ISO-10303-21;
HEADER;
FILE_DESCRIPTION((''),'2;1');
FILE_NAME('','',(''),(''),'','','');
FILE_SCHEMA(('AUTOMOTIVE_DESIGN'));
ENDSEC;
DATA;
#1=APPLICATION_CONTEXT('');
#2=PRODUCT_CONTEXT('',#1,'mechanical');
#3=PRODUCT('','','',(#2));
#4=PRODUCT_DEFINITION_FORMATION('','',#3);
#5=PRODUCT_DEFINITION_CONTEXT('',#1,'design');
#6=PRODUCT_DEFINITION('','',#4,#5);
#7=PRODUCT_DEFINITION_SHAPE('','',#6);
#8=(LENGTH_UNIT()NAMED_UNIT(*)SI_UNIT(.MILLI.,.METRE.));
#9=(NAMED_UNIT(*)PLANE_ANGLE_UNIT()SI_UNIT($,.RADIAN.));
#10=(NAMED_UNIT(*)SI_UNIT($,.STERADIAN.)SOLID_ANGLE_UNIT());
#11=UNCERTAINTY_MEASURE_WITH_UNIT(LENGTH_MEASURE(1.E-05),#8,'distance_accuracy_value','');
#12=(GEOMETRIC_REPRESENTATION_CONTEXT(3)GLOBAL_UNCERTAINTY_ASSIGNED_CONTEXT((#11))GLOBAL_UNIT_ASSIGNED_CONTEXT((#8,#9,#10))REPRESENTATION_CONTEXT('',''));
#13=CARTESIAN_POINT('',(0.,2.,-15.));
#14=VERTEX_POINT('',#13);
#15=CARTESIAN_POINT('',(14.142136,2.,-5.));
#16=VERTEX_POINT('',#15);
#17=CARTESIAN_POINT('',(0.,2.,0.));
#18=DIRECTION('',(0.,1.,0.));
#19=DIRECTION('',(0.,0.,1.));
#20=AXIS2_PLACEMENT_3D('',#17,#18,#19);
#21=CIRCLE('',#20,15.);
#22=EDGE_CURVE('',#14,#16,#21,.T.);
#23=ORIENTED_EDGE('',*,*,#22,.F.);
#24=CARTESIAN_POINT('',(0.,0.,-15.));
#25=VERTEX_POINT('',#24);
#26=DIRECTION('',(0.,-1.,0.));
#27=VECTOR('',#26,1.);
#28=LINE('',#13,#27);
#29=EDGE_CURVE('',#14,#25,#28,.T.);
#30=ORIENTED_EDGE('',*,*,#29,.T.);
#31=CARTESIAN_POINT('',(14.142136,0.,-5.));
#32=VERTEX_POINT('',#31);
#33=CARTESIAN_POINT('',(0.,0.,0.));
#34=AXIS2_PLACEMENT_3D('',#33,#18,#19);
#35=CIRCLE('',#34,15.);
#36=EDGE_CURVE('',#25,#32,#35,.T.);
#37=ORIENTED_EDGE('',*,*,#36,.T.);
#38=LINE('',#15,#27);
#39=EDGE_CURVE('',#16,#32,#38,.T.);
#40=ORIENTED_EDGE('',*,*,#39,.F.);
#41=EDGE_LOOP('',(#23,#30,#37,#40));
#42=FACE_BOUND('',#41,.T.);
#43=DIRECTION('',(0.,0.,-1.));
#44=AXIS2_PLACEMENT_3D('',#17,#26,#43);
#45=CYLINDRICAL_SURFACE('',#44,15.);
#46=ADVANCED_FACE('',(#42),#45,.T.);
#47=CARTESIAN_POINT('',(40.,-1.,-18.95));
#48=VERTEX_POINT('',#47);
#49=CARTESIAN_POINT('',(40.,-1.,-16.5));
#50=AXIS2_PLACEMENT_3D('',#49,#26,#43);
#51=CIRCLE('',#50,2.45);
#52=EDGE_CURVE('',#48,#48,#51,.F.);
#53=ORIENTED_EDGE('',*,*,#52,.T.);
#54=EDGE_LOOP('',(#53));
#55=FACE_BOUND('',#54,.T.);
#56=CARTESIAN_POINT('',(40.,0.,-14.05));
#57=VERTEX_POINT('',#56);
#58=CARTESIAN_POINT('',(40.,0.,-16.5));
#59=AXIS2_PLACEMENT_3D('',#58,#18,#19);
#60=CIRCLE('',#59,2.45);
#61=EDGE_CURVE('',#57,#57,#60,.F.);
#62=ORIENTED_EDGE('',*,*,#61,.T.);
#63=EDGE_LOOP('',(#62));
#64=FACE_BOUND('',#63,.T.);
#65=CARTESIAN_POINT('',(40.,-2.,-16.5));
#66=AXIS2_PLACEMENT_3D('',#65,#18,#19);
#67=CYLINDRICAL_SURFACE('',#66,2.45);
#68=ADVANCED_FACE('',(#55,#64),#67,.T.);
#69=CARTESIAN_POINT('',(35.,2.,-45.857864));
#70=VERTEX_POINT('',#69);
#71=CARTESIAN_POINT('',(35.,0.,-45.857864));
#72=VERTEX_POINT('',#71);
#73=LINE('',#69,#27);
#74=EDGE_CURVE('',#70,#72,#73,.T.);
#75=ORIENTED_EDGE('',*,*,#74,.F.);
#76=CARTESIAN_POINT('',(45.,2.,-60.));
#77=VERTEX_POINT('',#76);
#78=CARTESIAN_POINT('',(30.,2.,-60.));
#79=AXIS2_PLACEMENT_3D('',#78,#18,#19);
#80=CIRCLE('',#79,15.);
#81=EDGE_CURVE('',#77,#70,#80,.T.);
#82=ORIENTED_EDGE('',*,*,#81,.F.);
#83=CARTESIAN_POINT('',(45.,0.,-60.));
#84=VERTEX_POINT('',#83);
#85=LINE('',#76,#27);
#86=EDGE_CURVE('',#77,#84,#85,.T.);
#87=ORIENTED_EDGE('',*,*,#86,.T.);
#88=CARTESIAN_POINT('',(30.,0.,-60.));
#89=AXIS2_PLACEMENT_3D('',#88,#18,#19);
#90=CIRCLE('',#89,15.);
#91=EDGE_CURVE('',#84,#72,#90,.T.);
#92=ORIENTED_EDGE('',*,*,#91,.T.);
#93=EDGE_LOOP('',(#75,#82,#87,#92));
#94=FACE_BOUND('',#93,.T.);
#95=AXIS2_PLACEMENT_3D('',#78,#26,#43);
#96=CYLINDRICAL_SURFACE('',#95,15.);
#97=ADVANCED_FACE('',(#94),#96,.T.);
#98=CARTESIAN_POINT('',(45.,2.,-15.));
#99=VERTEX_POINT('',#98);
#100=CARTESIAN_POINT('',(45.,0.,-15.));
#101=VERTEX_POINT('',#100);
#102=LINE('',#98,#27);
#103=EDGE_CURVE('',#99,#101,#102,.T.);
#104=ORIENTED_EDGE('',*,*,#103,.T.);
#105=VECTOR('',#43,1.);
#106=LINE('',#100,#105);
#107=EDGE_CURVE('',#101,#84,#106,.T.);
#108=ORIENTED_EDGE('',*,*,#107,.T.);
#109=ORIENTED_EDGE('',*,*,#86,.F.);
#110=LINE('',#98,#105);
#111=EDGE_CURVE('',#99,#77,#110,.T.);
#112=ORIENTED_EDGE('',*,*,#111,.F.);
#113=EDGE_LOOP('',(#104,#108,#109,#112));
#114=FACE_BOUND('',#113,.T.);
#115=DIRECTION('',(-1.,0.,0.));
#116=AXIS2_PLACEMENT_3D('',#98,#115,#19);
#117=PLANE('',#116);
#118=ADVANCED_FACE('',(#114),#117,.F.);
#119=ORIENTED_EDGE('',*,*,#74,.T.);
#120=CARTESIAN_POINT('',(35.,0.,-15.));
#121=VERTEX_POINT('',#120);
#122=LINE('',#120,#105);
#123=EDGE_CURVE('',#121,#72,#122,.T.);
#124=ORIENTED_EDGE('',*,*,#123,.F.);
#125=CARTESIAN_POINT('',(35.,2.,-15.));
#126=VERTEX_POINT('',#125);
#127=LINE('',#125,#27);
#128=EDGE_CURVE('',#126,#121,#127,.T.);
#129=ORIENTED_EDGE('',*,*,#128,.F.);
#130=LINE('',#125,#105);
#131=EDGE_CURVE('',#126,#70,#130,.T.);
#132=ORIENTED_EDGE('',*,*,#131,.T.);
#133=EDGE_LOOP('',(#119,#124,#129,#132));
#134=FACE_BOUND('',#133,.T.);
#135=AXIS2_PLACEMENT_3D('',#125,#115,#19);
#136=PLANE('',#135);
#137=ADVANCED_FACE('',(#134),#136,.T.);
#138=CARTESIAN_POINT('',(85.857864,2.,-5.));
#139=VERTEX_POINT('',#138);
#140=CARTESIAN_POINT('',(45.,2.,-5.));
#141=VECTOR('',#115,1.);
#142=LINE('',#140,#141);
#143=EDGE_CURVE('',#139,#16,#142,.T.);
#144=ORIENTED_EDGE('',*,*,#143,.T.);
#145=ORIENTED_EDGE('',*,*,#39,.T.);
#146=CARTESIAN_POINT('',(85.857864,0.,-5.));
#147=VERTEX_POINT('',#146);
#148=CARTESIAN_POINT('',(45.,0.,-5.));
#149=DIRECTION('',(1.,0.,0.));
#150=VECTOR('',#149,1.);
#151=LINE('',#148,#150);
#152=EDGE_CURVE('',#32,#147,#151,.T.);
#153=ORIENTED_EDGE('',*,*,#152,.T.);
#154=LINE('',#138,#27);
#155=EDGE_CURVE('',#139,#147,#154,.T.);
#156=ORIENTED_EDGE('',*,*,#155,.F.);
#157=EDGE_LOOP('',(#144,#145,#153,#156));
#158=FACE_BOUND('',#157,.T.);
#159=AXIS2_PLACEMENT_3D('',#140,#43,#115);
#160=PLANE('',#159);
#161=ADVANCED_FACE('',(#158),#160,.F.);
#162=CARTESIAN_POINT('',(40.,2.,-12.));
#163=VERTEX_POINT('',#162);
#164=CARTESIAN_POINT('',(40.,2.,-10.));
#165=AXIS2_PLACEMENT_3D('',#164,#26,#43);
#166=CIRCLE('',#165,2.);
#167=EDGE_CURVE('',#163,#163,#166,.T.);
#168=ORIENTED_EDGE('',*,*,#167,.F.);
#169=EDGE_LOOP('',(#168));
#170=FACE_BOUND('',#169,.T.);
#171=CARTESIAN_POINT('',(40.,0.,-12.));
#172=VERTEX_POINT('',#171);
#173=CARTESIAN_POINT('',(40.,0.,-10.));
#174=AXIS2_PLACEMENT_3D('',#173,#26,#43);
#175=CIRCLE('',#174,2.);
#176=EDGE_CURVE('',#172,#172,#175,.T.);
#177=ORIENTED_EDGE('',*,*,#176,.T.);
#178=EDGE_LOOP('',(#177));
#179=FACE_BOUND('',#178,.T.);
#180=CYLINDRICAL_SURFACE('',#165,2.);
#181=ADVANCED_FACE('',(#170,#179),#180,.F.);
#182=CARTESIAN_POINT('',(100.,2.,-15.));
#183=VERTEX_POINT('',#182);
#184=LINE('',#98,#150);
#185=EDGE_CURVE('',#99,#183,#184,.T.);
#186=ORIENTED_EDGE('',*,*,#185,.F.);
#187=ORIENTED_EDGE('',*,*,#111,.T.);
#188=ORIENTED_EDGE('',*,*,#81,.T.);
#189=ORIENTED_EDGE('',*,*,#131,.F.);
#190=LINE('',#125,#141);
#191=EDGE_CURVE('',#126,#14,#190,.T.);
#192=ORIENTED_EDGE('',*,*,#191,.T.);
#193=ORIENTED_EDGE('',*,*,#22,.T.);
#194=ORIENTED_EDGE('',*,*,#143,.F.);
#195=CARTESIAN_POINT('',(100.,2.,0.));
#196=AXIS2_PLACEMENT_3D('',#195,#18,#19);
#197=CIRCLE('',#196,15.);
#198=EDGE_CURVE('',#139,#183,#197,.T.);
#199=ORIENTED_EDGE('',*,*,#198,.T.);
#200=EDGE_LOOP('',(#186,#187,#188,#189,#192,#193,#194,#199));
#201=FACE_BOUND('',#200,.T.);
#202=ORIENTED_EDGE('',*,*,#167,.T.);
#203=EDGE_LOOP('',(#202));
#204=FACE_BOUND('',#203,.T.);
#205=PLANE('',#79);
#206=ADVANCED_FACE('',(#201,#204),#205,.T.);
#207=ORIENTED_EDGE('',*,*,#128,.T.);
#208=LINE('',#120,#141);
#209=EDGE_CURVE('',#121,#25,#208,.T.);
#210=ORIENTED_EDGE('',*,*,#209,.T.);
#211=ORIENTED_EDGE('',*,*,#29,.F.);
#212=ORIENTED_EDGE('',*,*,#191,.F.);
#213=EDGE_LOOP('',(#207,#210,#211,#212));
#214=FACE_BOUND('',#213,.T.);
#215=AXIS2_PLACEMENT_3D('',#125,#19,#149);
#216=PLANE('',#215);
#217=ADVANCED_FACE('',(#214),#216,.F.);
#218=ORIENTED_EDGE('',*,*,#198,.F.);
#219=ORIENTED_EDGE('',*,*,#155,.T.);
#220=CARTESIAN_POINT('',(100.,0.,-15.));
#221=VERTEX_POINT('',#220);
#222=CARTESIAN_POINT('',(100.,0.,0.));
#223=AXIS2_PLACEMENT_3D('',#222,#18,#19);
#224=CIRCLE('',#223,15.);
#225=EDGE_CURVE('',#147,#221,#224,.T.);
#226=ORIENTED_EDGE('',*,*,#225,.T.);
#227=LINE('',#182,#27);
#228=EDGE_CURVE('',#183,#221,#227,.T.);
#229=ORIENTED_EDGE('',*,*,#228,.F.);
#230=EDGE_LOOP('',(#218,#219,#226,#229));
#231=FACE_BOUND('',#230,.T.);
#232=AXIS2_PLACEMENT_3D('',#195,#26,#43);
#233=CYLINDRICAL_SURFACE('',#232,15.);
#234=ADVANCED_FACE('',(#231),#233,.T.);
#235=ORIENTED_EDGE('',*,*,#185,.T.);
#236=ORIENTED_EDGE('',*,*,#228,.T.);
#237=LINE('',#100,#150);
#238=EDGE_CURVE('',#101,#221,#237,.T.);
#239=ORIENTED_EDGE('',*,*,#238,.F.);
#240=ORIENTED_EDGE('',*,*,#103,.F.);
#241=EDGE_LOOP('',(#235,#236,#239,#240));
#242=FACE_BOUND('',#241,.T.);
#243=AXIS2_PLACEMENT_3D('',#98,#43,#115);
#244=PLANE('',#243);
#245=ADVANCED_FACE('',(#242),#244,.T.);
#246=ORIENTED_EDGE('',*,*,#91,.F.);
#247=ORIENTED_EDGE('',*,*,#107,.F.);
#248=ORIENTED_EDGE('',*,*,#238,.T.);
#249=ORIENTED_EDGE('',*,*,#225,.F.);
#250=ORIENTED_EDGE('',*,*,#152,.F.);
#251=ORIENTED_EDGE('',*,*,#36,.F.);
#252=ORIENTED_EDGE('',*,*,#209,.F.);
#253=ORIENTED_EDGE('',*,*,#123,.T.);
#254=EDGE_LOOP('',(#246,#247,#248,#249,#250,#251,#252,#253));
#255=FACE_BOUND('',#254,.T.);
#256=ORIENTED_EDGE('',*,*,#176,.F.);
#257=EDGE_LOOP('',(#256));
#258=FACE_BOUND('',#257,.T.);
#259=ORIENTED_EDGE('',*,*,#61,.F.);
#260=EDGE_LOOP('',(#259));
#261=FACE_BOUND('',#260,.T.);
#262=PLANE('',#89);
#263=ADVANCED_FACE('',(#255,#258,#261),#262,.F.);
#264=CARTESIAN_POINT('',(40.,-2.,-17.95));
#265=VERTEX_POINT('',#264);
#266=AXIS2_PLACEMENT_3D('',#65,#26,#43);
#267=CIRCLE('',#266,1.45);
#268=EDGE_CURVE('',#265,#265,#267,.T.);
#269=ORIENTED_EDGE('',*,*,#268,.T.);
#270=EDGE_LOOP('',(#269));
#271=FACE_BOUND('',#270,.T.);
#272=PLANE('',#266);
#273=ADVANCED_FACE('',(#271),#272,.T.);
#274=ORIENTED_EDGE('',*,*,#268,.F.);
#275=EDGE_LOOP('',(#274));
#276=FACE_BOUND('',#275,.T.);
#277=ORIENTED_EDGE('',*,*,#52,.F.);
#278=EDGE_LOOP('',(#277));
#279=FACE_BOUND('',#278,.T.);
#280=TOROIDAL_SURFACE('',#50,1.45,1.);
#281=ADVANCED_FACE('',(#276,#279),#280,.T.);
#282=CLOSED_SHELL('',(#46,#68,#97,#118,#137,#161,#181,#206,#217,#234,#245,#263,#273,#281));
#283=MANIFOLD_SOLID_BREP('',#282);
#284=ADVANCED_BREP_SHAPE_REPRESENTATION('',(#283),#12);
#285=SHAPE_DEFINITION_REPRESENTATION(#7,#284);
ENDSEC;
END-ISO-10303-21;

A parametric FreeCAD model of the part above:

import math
import FreeCAD as App
import Part
import Sketcher
from FreeCAD import Vector
Q = App.Units.Quantity


def edges_at(feature, points):
    """Names of the edges that pass closest to the given points."""
    edges = feature.Shape.Edges
    near = lambda p: min(range(len(edges)), key=lambda i: edges[i].distToShape(Part.Vertex(*p))[0])
    return sorted({f"Edge{near(p) + 1}" for p in points})

doc = App.newDocument("Part")
body = doc.addObject("PartDesign::Body", "Body")

# Sketch on XZ plane
sketch1 = doc.addObject("Sketcher::SketchObject", "Sketch")
body.addObject(sketch1)
sketch1.AttachmentSupport = (doc.XZ_Plane, [""])
sketch1.MapMode = "FlatFace"
sketch1.addGeometry([
    Part.LineSegment(Vector(35, -15, 0), Vector(0, -15, 0)),  # 0
    Part.ArcOfCircle(Part.Circle(Vector(0, 0, 0), Vector(0, 0, 1), 15), math.radians(-19), math.radians(270)),  # 1
    Part.LineSegment(Vector(14, -5, 0), Vector(86, -5, 0)),  # 2
    Part.ArcOfCircle(Part.Circle(Vector(100, 0, 0), Vector(0, 0, 1), 15), math.radians(-90), math.radians(199)),  # 3
    Part.LineSegment(Vector(100, -15, 0), Vector(45, -15, 0)),  # 4
    Part.LineSegment(Vector(45, -15, 0), Vector(45, -60, 0)),  # 5
    Part.ArcOfCircle(Part.Circle(Vector(30, -60, 0), Vector(0, 0, 1), 15), math.radians(71), math.radians(360)),  # 6
    Part.LineSegment(Vector(35, -46, 0), Vector(35, -15, 0)),  # 7
], False)
sketch1.addConstraint([
    Sketcher.Constraint("Tangent", 0, 2, 1, 2),
    Sketcher.Constraint("Coincident", 1, 1, 2, 1),
    Sketcher.Constraint("Coincident", 2, 2, 3, 2),
    Sketcher.Constraint("Tangent", 3, 1, 4, 1),
    Sketcher.Constraint("Coincident", 4, 2, 5, 1),
    Sketcher.Constraint("Tangent", 5, 2, 6, 2),
    Sketcher.Constraint("Coincident", 6, 1, 7, 1),
    Sketcher.Constraint("Coincident", 7, 2, 0, 1),
    Sketcher.Constraint("Horizontal", 0),
    Sketcher.Constraint("Horizontal", 2),
    Sketcher.Constraint("Horizontal", 4),
    Sketcher.Constraint("Vertical", 5),
    Sketcher.Constraint("Vertical", 7),
    Sketcher.Constraint("Coincident", 1, 3, -1, 1),
    Sketcher.Constraint("Equal", 1, 3),
    Sketcher.Constraint("Equal", 3, 6),
    Sketcher.Constraint("PointOnObject", 3, 3, -1),
    Sketcher.Constraint("Radius", 1, Q("15 mm")),
    Sketcher.Constraint("DistanceX", 0, 2, 0, 1, Q("35 mm")),
    Sketcher.Constraint("DistanceX", 4, 2, 4, 1, Q("55 mm")),
    Sketcher.Constraint("DistanceY", 5, 2, 5, 1, Q("45 mm")),
    Sketcher.Constraint("DistanceX", -1, 1, 3, 3, Q("100 mm")),
    Sketcher.Constraint("DistanceY", 1, 1, -1, 1, Q("5 mm")),
])
pad1 = doc.addObject("PartDesign::Pad", "Pad")
body.addObject(pad1)
pad1.Profile = sketch1
pad1.Length = 2
pad1.Reversed = True

# Sketch on XZ plane
sketch2 = doc.addObject("Sketcher::SketchObject", "Sketch001")
body.addObject(sketch2)
sketch2.AttachmentSupport = (doc.XZ_Plane, [""])
sketch2.MapMode = "FlatFace"
sketch2.addGeometry(Part.Circle(Vector(40, -10, 0), Vector(0, 0, 1), 2), False)
sketch2.addConstraint([
    Sketcher.Constraint("Diameter", 0, Q("4 mm")),
    Sketcher.Constraint("DistanceX", -1, 1, 0, 3, Q("40 mm")),
    Sketcher.Constraint("DistanceY", 0, 3, -1, 1, Q("10 mm")),
])
pocket1 = doc.addObject("PartDesign::Pocket", "Pocket")
body.addObject(pocket1)
pocket1.Profile = sketch2
pocket1.Type = "ThroughAll"

# Sketch on XZ plane
sketch3 = doc.addObject("Sketcher::SketchObject", "Sketch002")
body.addObject(sketch3)
sketch3.AttachmentSupport = (doc.XZ_Plane, [""])
sketch3.MapMode = "FlatFace"
sketch3.addGeometry(Part.Circle(Vector(40, -16.5, 0), Vector(0, 0, 1), 2.5), False)
sketch3.addConstraint([
    Sketcher.Constraint("Diameter", 0, Q("4.9 mm")),
    Sketcher.Constraint("DistanceX", -1, 1, 0, 3, Q("40 mm")),
    Sketcher.Constraint("DistanceY", 0, 3, -1, 1, Q("16.5 mm")),
])
pad2 = doc.addObject("PartDesign::Pad", "Pad001")
body.addObject(pad2)
pad2.Profile = sketch3
pad2.Length = 2
doc.recompute()

fillet = doc.addObject("PartDesign::Fillet", "Fillet")
body.addObject(fillet)
fillet.Base = (pad2, edges_at(pad2, [(37.55, -2, -16.5)]))
fillet.Radius = 1

doc.recompute()
